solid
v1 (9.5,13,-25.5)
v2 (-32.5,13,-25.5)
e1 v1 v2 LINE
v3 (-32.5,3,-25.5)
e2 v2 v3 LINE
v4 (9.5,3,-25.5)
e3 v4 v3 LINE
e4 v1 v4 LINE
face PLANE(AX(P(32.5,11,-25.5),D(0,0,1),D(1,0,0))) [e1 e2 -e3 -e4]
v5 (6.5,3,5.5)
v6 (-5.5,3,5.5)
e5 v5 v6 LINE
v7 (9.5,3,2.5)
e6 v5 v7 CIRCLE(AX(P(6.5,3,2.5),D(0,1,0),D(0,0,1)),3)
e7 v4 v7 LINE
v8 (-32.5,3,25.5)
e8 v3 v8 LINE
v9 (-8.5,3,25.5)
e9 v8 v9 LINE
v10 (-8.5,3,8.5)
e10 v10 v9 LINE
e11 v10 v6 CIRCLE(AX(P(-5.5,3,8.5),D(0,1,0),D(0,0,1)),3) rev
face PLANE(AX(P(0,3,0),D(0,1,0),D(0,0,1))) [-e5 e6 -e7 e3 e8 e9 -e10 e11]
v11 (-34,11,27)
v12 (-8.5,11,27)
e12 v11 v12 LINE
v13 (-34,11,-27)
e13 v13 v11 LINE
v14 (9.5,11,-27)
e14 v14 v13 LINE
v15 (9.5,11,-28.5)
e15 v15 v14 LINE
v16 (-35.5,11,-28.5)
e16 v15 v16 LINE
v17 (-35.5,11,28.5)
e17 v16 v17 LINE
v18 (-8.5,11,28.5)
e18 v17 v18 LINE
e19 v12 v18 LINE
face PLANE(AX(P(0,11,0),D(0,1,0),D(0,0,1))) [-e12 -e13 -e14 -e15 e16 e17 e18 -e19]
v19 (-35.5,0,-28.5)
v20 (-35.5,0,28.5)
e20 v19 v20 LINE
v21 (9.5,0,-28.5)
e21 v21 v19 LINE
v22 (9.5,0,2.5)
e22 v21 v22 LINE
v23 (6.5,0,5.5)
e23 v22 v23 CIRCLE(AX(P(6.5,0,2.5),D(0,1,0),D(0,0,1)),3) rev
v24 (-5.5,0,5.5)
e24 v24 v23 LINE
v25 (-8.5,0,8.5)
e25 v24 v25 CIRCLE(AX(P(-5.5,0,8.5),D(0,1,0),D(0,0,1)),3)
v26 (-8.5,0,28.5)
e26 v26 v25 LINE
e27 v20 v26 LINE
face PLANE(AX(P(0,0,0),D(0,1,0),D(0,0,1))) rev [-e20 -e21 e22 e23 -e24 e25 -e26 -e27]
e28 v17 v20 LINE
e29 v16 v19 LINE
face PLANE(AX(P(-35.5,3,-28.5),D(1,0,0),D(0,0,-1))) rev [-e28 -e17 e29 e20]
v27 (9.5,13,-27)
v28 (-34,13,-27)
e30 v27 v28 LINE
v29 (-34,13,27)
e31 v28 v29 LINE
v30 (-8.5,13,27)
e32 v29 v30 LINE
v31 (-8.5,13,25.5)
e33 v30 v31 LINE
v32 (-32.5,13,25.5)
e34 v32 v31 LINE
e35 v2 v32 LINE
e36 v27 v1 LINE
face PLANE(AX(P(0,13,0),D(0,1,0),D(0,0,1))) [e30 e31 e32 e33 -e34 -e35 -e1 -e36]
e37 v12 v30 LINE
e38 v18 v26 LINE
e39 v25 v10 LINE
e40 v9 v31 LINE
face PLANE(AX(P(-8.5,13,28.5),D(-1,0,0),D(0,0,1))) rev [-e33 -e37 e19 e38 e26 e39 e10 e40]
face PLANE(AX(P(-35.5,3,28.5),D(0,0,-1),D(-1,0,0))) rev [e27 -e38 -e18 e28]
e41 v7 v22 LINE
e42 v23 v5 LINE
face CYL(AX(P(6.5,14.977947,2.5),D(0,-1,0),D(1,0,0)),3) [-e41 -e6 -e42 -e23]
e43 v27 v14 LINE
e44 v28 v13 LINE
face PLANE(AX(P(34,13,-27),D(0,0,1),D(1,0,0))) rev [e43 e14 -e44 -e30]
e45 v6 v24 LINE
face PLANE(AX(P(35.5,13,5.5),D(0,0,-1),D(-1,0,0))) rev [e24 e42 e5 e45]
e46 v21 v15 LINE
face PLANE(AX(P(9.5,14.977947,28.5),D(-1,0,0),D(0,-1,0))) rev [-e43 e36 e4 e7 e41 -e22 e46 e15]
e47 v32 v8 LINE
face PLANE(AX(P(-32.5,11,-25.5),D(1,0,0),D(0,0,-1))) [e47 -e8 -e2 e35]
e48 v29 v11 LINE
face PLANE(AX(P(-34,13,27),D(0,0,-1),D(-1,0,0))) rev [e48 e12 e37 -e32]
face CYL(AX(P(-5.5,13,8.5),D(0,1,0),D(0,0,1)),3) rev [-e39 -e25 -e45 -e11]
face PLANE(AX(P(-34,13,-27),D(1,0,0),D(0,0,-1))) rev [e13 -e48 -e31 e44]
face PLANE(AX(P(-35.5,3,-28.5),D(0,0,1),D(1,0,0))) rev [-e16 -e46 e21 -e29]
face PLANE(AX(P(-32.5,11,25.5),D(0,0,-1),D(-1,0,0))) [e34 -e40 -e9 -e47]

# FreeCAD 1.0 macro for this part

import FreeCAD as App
import Part
import Sketcher


def edges_at(feature, points):
    """Names of the edges that pass closest to the given points."""
    edges = feature.Shape.Edges
    near = lambda p: min(range(len(edges)), key=lambda i: edges[i].distToShape(Part.Vertex(*p))[0])
    return sorted({f"Edge{near(p) + 1}" for p in points})

doc = App.newDocument("Part")
params = doc.addObject("Spreadsheet::Sheet", "Params")
for row, (alias, value) in enumerate([
    ("sketch1_width", "71 mm"),
    ("sketch1_height", "57 mm"),
    ("pad1_length", "3 mm"),
    ("sketch2_width", "71 mm"),
    ("sketch2_width2", "65 mm"),
    ("sketch2_height", "57 mm"),
    ("sketch2_height2", "51 mm"),
    ("pad2_length", "8 mm"),
    ("sketch3_width", "68 mm"),
    ("sketch3_width2", "65 mm"),
    ("sketch3_height", "54 mm"),
    ("sketch3_height2", "51 mm"),
    ("pad3_length", "2 mm"),
    ("sketch4_width", "26 mm"),
    ("sketch5_width", "44 mm"),
    ("sketch5_height", "23 mm"),
    ("fillet_radius", "3 mm"),
], start=1):
    params.set(f"A{row}", alias)
    params.set(f"B{row}", "=" + value)
    params.setAlias(f"B{row}", alias)

body = doc.addObject("PartDesign::Body", "Body")

# Sketch on XZ plane
sketch1 = body.newObject("Sketcher::SketchObject", "Sketch")
sketch1.AttachmentSupport = (doc.getObject("XZ_Plane"), [""])
sketch1.MapMode = "FlatFace"
sketch1.addGeometry([
    Part.LineSegment(App.Vector(-36, -28, 0), App.Vector(-36, 28, 0)),
    Part.LineSegment(App.Vector(-36, 28, 0), App.Vector(36, 28, 0)),
    Part.LineSegment(App.Vector(36, 28, 0), App.Vector(36, -28, 0)),
    Part.LineSegment(App.Vector(36, -28, 0), App.Vector(-36, -28, 0)),
], False)
sketch1.addConstraint([
    Sketcher.Constraint("Coincident", 0, 2, 1, 1),
    Sketcher.Constraint("Coincident", 1, 2, 2, 1),
    Sketcher.Constraint("Coincident", 2, 2, 3, 1),
    Sketcher.Constraint("Coincident", 3, 2, 0, 1),
    Sketcher.Constraint("Vertical", 0),
    Sketcher.Constraint("Horizontal", 1),
    Sketcher.Constraint("Vertical", 2),
    Sketcher.Constraint("Horizontal", 3),
    Sketcher.Constraint("Symmetric", 0, 2, 2, 2, -1, 1),
    Sketcher.Constraint("DistanceX", 1, 1, 1, 2, 71.0),
    Sketcher.Constraint("DistanceY", 0, 1, 0, 2, 57.0),
])
sketch1.setExpression("Constraints[9]", "Params.sketch1_width")
sketch1.setExpression("Constraints[10]", "Params.sketch1_height")
pad1 = body.newObject("PartDesign::Pad", "Pad")
pad1.Profile = sketch1
pad1.setExpression("Length", "Params.pad1_length")
pad1.Reversed = True

# Sketch on XZ plane
sketch2 = body.newObject("Sketcher::SketchObject", "Sketch001")
sketch2.AttachmentSupport = (doc.getObject("XZ_Plane"), [""])
sketch2.MapMode = "FlatFace"
sketch2.AttachmentOffset = App.Placement(App.Vector(0, 0, -3), App.Rotation())
sketch2.addGeometry([
    Part.LineSegment(App.Vector(-36, -28, 0), App.Vector(-36, 28, 0)),  # 0
    Part.LineSegment(App.Vector(-36, 28, 0), App.Vector(36, 28, 0)),  # 1
    Part.LineSegment(App.Vector(36, 28, 0), App.Vector(36, -28, 0)),  # 2
    Part.LineSegment(App.Vector(36, -28, 0), App.Vector(-36, -28, 0)),  # 3
    Part.LineSegment(App.Vector(32, 26, 0), App.Vector(-32, 26, 0)),  # 4
    Part.LineSegment(App.Vector(-32, 26, 0), App.Vector(-32, -26, 0)),  # 5
    Part.LineSegment(App.Vector(-32, -26, 0), App.Vector(32, -26, 0)),  # 6
    Part.LineSegment(App.Vector(32, -26, 0), App.Vector(32, 26, 0)),  # 7
], False)
sketch2.addConstraint([
    Sketcher.Constraint("Coincident", 0, 2, 1, 1),
    Sketcher.Constraint("Coincident", 1, 2, 2, 1),
    Sketcher.Constraint("Coincident", 2, 2, 3, 1),
    Sketcher.Constraint("Coincident", 3, 2, 0, 1),
    Sketcher.Constraint("Coincident", 4, 2, 5, 1),
    Sketcher.Constraint("Coincident", 5, 2, 6, 1),
    Sketcher.Constraint("Coincident", 6, 2, 7, 1),
    Sketcher.Constraint("Coincident", 7, 2, 4, 1),
    Sketcher.Constraint("Vertical", 0),
    Sketcher.Constraint("Horizontal", 1),
    Sketcher.Constraint("Vertical", 2),
    Sketcher.Constraint("Horizontal", 3),
    Sketcher.Constraint("Horizontal", 4),
    Sketcher.Constraint("Vertical", 5),
    Sketcher.Constraint("Horizontal", 6),
    Sketcher.Constraint("Vertical", 7),
    Sketcher.Constraint("Symmetric", 0, 2, 2, 2, -1, 1),
    Sketcher.Constraint("Symmetric", 4, 2, 6, 2, -1, 1),
    Sketcher.Constraint("DistanceX", 1, 1, 1, 2, 71.0),
    Sketcher.Constraint("DistanceX", 4, 2, 4, 1, 65.0),
    Sketcher.Constraint("DistanceY", 0, 1, 0, 2, 57.0),
    Sketcher.Constraint("DistanceY", 5, 2, 5, 1, 51.0),
])
sketch2.setExpression("Constraints[18]", "Params.sketch2_width")
sketch2.setExpression("Constraints[19]", "Params.sketch2_width2")
sketch2.setExpression("Constraints[20]", "Params.sketch2_height")
sketch2.setExpression("Constraints[21]", "Params.sketch2_height2")
pad2 = body.newObject("PartDesign::Pad", "Pad001")
pad2.Profile = sketch2
pad2.setExpression("Length", "Params.pad2_length")
pad2.Reversed = True

# Sketch on XZ plane
sketch3 = body.newObject("Sketcher::SketchObject", "Sketch002")
sketch3.AttachmentSupport = (doc.getObject("XZ_Plane"), [""])
sketch3.MapMode = "FlatFace"
sketch3.AttachmentOffset = App.Placement(App.Vector(0, 0, -11), App.Rotation())
sketch3.addGeometry([
    Part.LineSegment(App.Vector(-34, -27, 0), App.Vector(-34, 27, 0)),  # 0
    Part.LineSegment(App.Vector(-34, 27, 0), App.Vector(34, 27, 0)),  # 1
    Part.LineSegment(App.Vector(34, 27, 0), App.Vector(34, -27, 0)),  # 2
    Part.LineSegment(App.Vector(34, -27, 0), App.Vector(-34, -27, 0)),  # 3
    Part.LineSegment(App.Vector(32, 26, 0), App.Vector(-32, 26, 0)),  # 4
    Part.LineSegment(App.Vector(-32, 26, 0), App.Vector(-32, -26, 0)),  # 5
    Part.LineSegment(App.Vector(-32, -26, 0), App.Vector(32, -26, 0)),  # 6
    Part.LineSegment(App.Vector(32, -26, 0), App.Vector(32, 26, 0)),  # 7
], False)
sketch3.addConstraint([
    Sketcher.Constraint("Coincident", 0, 2, 1, 1),
    Sketcher.Constraint("Coincident", 1, 2, 2, 1),
    Sketcher.Constraint("Coincident", 2, 2, 3, 1),
    Sketcher.Constraint("Coincident", 3, 2, 0, 1),
    Sketcher.Constraint("Coincident", 4, 2, 5, 1),
    Sketcher.Constraint("Coincident", 5, 2, 6, 1),
    Sketcher.Constraint("Coincident", 6, 2, 7, 1),
    Sketcher.Constraint("Coincident", 7, 2, 4, 1),
    Sketcher.Constraint("Vertical", 0),
    Sketcher.Constraint("Horizontal", 1),
    Sketcher.Constraint("Vertical", 2),
    Sketcher.Constraint("Horizontal", 3),
    Sketcher.Constraint("Horizontal", 4),
    Sketcher.Constraint("Vertical", 5),
    Sketcher.Constraint("Horizontal", 6),
    Sketcher.Constraint("Vertical", 7),
    Sketcher.Constraint("Symmetric", 0, 2, 2, 2, -1, 1),
    Sketcher.Constraint("Symmetric", 4, 2, 6, 2, -1, 1),
    Sketcher.Constraint("DistanceX", 1, 1, 1, 2, 68.0),
    Sketcher.Constraint("DistanceX", 4, 2, 4, 1, 65.0),
    Sketcher.Constraint("DistanceY", 0, 1, 0, 2, 54.0),
    Sketcher.Constraint("DistanceY", 5, 2, 5, 1, 51.0),
])
sketch3.setExpression("Constraints[18]", "Params.sketch3_width")
sketch3.setExpression("Constraints[19]", "Params.sketch3_width2")
sketch3.setExpression("Constraints[20]", "Params.sketch3_height")
sketch3.setExpression("Constraints[21]", "Params.sketch3_height2")
pad3 = body.newObject("PartDesign::Pad", "Pad002")
pad3.Profile = sketch3
pad3.setExpression("Length", "Params.pad3_length")
pad3.Reversed = True

# Sketch on XY plane
sketch4 = body.newObject("Sketcher::SketchObject", "Sketch003")
sketch4.AttachmentSupport = (doc.getObject("XY_Plane"), [""])
sketch4.MapMode = "FlatFace"
sketch4.AttachmentOffset = App.Placement(App.Vector(0, 0, -28.5), App.Rotation())
sketch4.addGeometry([
    Part.LineSegment(App.Vector(36, 15, 0), App.Vector(36, -1, 0)),
    Part.LineSegment(App.Vector(36, -1, 0), App.Vector(10, -1, 0)),
    Part.LineSegment(App.Vector(10, -1, 0), App.Vector(10, 15, 0)),
    Part.LineSegment(App.Vector(10, 15, 0), App.Vector(36, 15, 0)),
], False)
sketch4.addConstraint([
    Sketcher.Constraint("Coincident", 0, 2, 1, 1),
    Sketcher.Constraint("Coincident", 1, 2, 2, 1),
    Sketcher.Constraint("Coincident", 2, 2, 3, 1),
    Sketcher.Constraint("Coincident", 3, 2, 0, 1),
    Sketcher.Constraint("Vertical", 0),
    Sketcher.Constraint("Horizontal", 1),
    Sketcher.Constraint("Vertical", 2),
    Sketcher.Constraint("Horizontal", 3),
    Sketcher.Constraint("DistanceX", 1, 2, 1, 1, 26.0),
    Sketcher.Constraint("DistanceX", -1, 1, 0, 2, 35.5),
    Sketcher.Constraint("DistanceY", 0, 2, 0, 1, 15.829788),
    Sketcher.Constraint("DistanceY", 0, 2, -1, 1, 0.851841),
])
sketch4.setExpression("Constraints[8]", "Params.sketch4_width")
pocket1 = body.newObject("PartDesign::Pocket", "Pocket")
pocket1.Profile = sketch4
pocket1.Type = "ThroughAll"
pocket1.Reversed = True

# Sketch on XZ plane
sketch5 = body.newObject("Sketcher::SketchObject", "Sketch004")
sketch5.AttachmentSupport = (doc.getObject("XZ_Plane"), [""])
sketch5.MapMode = "FlatFace"
sketch5.addGeometry([
    Part.LineSegment(App.Vector(-8, 28, 0), App.Vector(-8, 6, 0)),
    Part.LineSegment(App.Vector(-8, 6, 0), App.Vector(36, 6, 0)),
    Part.LineSegment(App.Vector(36, 6, 0), App.Vector(36, 28, 0)),
    Part.LineSegment(App.Vector(36, 28, 0), App.Vector(-8, 28, 0)),
], False)
sketch5.addConstraint([
    Sketcher.Constraint("Coincident", 0, 2, 1, 1),
    Sketcher.Constraint("Coincident", 1, 2, 2, 1),
    Sketcher.Constraint("Coincident", 2, 2, 3, 1),
    Sketcher.Constraint("Coincident", 3, 2, 0, 1),
    Sketcher.Constraint("Vertical", 0),
    Sketcher.Constraint("Horizontal", 1),
    Sketcher.Constraint("Vertical", 2),
    Sketcher.Constraint("Horizontal", 3),
    Sketcher.Constraint("DistanceX", 1, 1, 1, 2, 44.0),
    Sketcher.Constraint("DistanceY", 0, 2, 0, 1, 23.0),
    Sketcher.Constraint("DistanceX", 0, 2, -1, 1, 8.5),
    Sketcher.Constraint("DistanceY", -1, 1, 0, 2, 5.5),
])
sketch5.setExpression("Constraints[8]", "Params.sketch5_width")
sketch5.setExpression("Constraints[9]", "Params.sketch5_height")
pocket2 = body.newObject("PartDesign::Pocket", "Pocket001")
pocket2.Profile = sketch5
pocket2.Type = "ThroughAll"
doc.recompute()

fillet = body.newObject("PartDesign::Fillet", "Fillet")
fillet.Base = (pocket2, edges_at(pocket2, [(-8.5, 1.5, 5.5), (9.5, 1.5, 5.5)]))
fillet.setExpression("Radius", "Params.fillet_radius")

doc.recompute()
